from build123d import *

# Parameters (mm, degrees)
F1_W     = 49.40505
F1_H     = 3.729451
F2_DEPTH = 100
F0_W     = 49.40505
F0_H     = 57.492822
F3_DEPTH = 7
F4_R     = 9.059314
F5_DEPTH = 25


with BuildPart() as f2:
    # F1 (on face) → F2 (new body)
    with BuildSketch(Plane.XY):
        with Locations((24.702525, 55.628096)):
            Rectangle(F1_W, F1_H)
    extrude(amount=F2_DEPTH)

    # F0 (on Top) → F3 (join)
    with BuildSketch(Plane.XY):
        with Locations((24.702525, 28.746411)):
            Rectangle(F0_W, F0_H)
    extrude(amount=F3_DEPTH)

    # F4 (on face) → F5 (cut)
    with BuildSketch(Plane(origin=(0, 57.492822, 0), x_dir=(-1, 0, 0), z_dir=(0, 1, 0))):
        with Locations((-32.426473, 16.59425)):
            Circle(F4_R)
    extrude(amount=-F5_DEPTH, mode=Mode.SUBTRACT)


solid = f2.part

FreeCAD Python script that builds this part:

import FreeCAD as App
import Part
import Sketcher

V = App.Vector


def add_polygon(sketch, points):
    """Adds a closed chain of lines whose ends are joined by coincident constraints."""
    first, n = sketch.GeometryCount, len(points)
    for a, b in zip(points, points[1:] + points[:1]):
        sketch.addGeometry(Part.LineSegment(App.Vector(*a, 0), App.Vector(*b, 0)), False)
    for i in range(n):
        sketch.addConstraint(Sketcher.Constraint("Coincident", first + i, 2, first + (i + 1) % n, 1))

doc = App.newDocument("Part")
params = doc.addObject("Spreadsheet::Sheet", "Params")
for row, (alias, value) in enumerate([
    ("pad1_length", "100 mm"),
    ("pad2_length", "7 mm"),
    ("pocket1_length", "25 mm"),
], start=1):
    params.set(f"A{row}", alias)
    params.set(f"B{row}", "=" + value)
    params.setAlias(f"B{row}", alias)

body = doc.addObject("PartDesign::Body", "Body")

sketch1 = body.newObject("Sketcher::SketchObject", "Sketch")
sketch1.AttachmentSupport = (doc.getObject("XY_Plane"), [""])
sketch1.MapMode = "FlatFace"
add_polygon(sketch1, [(0, 57.5), (0, 53.8), (49.4, 53.8), (49.4, 57.5)])
sketch1.addConstraint([
    Sketcher.Constraint("Vertical", 0),
    Sketcher.Constraint("Horizontal", 1),
    Sketcher.Constraint("Vertical", 2),
    Sketcher.Constraint("Horizontal", 3),
    Sketcher.Constraint("PointOnObject", 0, 2, -2),
    Sketcher.Constraint("DistanceX", 1, 1, 1, 2, 49.40505),
    Sketcher.Constraint("DistanceY", 0, 2, 0, 1, 3.729451),
    Sketcher.Constraint("DistanceY", -1, 1, 0, 2, 53.763371),
])
pad1 = body.newObject("PartDesign::Pad", "Pad")
pad1.Profile = sketch1
pad1.setExpression("Length", "Params.pad1_length")

sketch2 = body.newObject("Sketcher::SketchObject", "Sketch001")
sketch2.AttachmentSupport = (doc.getObject("XY_Plane"), [""])
sketch2.MapMode = "FlatFace"
add_polygon(sketch2, [(0, 57), (0, 0), (49, 0), (49, 57)])
sketch2.addConstraint([
    Sketcher.Constraint("Vertical", 0),
    Sketcher.Constraint("Horizontal", 1),
    Sketcher.Constraint("Vertical", 2),
    Sketcher.Constraint("Horizontal", 3),
    Sketcher.Constraint("Coincident", 0, 2, -1, 1),
    Sketcher.Constraint("DistanceX", 1, 1, 1, 2, 49.40505),
    Sketcher.Constraint("DistanceY", 0, 2, 0, 1, 57.492822),
])
pad2 = body.newObject("PartDesign::Pad", "Pad001")
pad2.Profile = sketch2
pad2.setExpression("Length", "Params.pad2_length")

sketch3 = body.newObject("Sketcher::SketchObject", "Sketch002")
sketch3.AttachmentSupport = (doc.getObject("XZ_Plane"), [""])
sketch3.MapMode = "FlatFace"
sketch3.AttachmentOffset = App.Placement(V(0, 0, -57.492822), App.Rotation())
sketch3.addGeometry(Part.Circle(V(32, 17, 0), V(0, 0, 1), 9), False)
sketch3.addConstraint([
    Sketcher.Constraint("Diameter", 0, 18.118628),
    Sketcher.Constraint("DistanceY", -1, 1, 0, 3, 16.59425),
    Sketcher.Constraint("DistanceX", -1, 1, 0, 3, 32.426473),
])
pocket1 = body.newObject("PartDesign::Pocket", "Pocket")
pocket1.Profile = sketch3
pocket1.setExpression("Length", "Params.pocket1_length")
pocket1.Reversed = True

doc.recompute()
